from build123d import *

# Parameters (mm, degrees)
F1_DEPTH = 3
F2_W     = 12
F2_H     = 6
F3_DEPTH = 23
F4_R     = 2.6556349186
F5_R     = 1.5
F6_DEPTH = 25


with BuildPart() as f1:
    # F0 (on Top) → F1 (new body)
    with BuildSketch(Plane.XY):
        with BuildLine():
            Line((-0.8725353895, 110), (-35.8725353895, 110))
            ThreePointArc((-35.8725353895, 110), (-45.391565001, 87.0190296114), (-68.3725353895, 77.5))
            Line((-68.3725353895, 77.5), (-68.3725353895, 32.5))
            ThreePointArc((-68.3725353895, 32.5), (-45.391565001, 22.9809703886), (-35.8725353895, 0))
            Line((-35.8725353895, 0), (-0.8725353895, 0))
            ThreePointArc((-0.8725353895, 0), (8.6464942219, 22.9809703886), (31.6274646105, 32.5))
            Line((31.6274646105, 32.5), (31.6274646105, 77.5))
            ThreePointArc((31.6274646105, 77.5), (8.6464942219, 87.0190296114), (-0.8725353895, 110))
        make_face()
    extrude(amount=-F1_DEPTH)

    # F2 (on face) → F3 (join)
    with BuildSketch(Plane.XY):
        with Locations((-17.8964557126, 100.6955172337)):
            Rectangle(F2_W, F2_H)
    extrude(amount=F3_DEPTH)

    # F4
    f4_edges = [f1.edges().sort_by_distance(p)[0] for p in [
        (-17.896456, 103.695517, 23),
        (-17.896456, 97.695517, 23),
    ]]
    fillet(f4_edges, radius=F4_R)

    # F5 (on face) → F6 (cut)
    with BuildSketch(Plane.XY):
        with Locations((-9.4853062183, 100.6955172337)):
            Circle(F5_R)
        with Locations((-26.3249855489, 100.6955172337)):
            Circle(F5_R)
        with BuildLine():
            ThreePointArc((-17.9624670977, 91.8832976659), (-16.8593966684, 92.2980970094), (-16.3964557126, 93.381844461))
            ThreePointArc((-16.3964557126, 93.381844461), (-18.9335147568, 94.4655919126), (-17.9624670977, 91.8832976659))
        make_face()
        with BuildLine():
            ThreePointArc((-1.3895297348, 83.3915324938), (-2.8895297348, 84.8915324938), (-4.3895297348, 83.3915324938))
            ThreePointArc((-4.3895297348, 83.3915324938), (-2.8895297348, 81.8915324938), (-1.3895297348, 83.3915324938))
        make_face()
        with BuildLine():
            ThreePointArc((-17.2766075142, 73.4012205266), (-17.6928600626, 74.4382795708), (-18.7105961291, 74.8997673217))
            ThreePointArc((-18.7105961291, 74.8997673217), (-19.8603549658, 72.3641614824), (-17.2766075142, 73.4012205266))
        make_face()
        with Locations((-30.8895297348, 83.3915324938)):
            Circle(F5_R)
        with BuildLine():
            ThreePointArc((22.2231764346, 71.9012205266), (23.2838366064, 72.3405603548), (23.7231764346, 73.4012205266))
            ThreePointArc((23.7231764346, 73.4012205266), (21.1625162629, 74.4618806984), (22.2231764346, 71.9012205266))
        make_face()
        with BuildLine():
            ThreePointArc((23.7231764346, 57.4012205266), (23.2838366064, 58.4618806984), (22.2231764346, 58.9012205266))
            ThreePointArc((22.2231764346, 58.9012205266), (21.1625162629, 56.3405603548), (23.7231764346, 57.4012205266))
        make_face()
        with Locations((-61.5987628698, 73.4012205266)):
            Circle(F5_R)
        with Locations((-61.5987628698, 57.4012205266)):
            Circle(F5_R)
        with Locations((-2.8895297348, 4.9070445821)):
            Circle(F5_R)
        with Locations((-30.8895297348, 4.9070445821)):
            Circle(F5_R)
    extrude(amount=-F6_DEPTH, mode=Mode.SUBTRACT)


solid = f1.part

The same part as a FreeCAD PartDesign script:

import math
import FreeCAD as App
import Part
import Sketcher
Q = App.Units.Quantity


def edges_at(feature, points):
    """Names of the edges that pass closest to the given points."""
    edges = feature.Shape.Edges
    near = lambda p: min(range(len(edges)), key=lambda i: edges[i].distToShape(Part.Vertex(*p))[0])
    return sorted({f"Edge{near(p) + 1}" for p in points})


def add_polygon(sketch, points):
    """Adds a closed chain of lines whose ends are joined by coincident constraints."""
    first, n = sketch.GeometryCount, len(points)
    for a, b in zip(points, points[1:] + points[:1]):
        sketch.addGeometry(Part.LineSegment(App.Vector(*a, 0), App.Vector(*b, 0)), False)
    for i in range(n):
        sketch.addConstraint(Sketcher.Constraint("Coincident", first + i, 2, first + (i + 1) % n, 1))

doc = App.newDocument("Part")
body = doc.addObject("PartDesign::Body", "Body")

# Sketch on XY plane
sketch1 = body.newObject("Sketcher::SketchObject", "Sketch")
sketch1.AttachmentSupport = (doc.getObject("XY_Plane"), [""])
sketch1.MapMode = "FlatFace"
sketch1.addGeometry([
    Part.LineSegment(App.Vector(-1, 110, 0), App.Vector(-36, 110, 0)),  # 0
    Part.ArcOfCircle(Part.Circle(App.Vector(-68, 110, 0), App.Vector(0, 0, 1), 32), math.radians(-90), math.radians(0)),  # 1
    Part.LineSegment(App.Vector(-68, 78, 0), App.Vector(-68, 32, 0)),  # 2
    Part.ArcOfCircle(Part.Circle(App.Vector(-68, 0, 0), App.Vector(0, 0, 1), 32), math.radians(0), math.radians(90)),  # 3
    Part.LineSegment(App.Vector(-36, 0, 0), App.Vector(-1, 0, 0)),  # 4
    Part.ArcOfCircle(Part.Circle(App.Vector(32, 0, 0), App.Vector(0, 0, 1), 32), math.radians(90), math.radians(180)),  # 5
    Part.LineSegment(App.Vector(32, 32, 0), App.Vector(32, 78, 0)),  # 6
    Part.ArcOfCircle(Part.Circle(App.Vector(32, 110, 0), App.Vector(0, 0, 1), 32), math.radians(180), math.radians(270)),  # 7
], False)
sketch1.addConstraint([
    Sketcher.Constraint("Coincident", 0, 2, 1, 2),
    Sketcher.Constraint("Coincident", 1, 1, 2, 1),
    Sketcher.Constraint("Coincident", 2, 2, 3, 2),
    Sketcher.Constraint("Coincident", 3, 1, 4, 1),
    Sketcher.Constraint("Coincident", 4, 2, 5, 2),
    Sketcher.Constraint("Coincident", 5, 1, 6, 1),
    Sketcher.Constraint("Coincident", 6, 2, 7, 2),
    Sketcher.Constraint("Coincident", 7, 1, 0, 1),
    Sketcher.Constraint("Horizontal", 0),
    Sketcher.Constraint("Vertical", 2),
    Sketcher.Constraint("Horizontal", 4),
    Sketcher.Constraint("Vertical", 6),
    Sketcher.Constraint("Equal", 1, 3),
    Sketcher.Constraint("Equal", 3, 5),
    Sketcher.Constraint("Equal", 5, 7),
    Sketcher.Constraint("PointOnObject", 3, 3, -1),
    Sketcher.Constraint("PointOnObject", 5, 3, -1),
    Sketcher.Constraint("PointOnObject", 3, 1, -1),
    Sketcher.Constraint("Horizontal", 1, 3, 7, 3),
    Sketcher.Constraint("Horizontal", 7, 3, 0, 2),
    Sketcher.Constraint("Vertical", 1, 3, 3, 3),
    Sketcher.Constraint("Vertical", 5, 3, 7, 3),
    Sketcher.Constraint("Vertical", 3, 3, 1, 1),
    Sketcher.Constraint("Vertical", 7, 3, 5, 1),
    Sketcher.Constraint("Radius", 1, Q("32.5 mm")),
    Sketcher.Constraint("DistanceX", 0, 2, 0, 1, Q("35 mm")),
    Sketcher.Constraint("DistanceY", 2, 2, 2, 1, Q("45 mm")),
    Sketcher.Constraint("DistanceX", 1, 3, -1, 1, Q("68.372535 mm")),
])
pad1 = body.newObject("PartDesign::Pad", "Pad")
pad1.Profile = sketch1
pad1.Length = 3
pad1.Reversed = True

# Sketch on XY plane
sketch2 = body.newObject("Sketcher::SketchObject", "Sketch001")
sketch2.AttachmentSupport = (doc.getObject("XY_Plane"), [""])
sketch2.MapMode = "FlatFace"
add_polygon(sketch2, [(-24, 104), (-24, 98), (-12, 98), (-12, 104)])  # lines 0-3
sketch2.addConstraint([
    Sketcher.Constraint("Vertical", 0),
    Sketcher.Constraint("Horizontal", 1),
    Sketcher.Constraint("Vertical", 2),
    Sketcher.Constraint("Horizontal", 3),
    Sketcher.Constraint("DistanceX", 1, 1, 1, 2, Q("12 mm")),
    Sketcher.Constraint("DistanceY", 0, 2, 0, 1, Q("6 mm")),
    Sketcher.Constraint("DistanceX", 0, 2, -1, 1, Q("23.896456 mm")),
    Sketcher.Constraint("DistanceY", -1, 1, 0, 2, Q("97.695517 mm")),
])
pad2 = body.newObject("PartDesign::Pad", "Pad001")
pad2.Profile = sketch2
pad2.Length = 23
doc.recompute()

fillet = body.newObject("PartDesign::Fillet", "Fillet")
fillet.Base = (pad2, edges_at(pad2, [(-17.896, 103.696, 23), (-17.896, 97.696, 23)]))
fillet.Radius = 2.655635

# Sketch on XY plane
sketch3 = body.newObject("Sketcher::SketchObject", "Sketch002")
sketch3.AttachmentSupport = (doc.getObject("XY_Plane"), [""])
sketch3.MapMode = "FlatFace"
sketch3.addGeometry([
    Part.Circle(App.Vector(-9.5, 100.7, 0), App.Vector(0, 0, 1), 1.5),  # 0
    Part.Circle(App.Vector(-26.3, 100.7, 0), App.Vector(0, 0, 1), 1.5),  # 1
    Part.ArcOfCircle(Part.Circle(App.Vector(-17.9, 93.4, 0), App.Vector(0, 0, 1), 1.5), math.radians(-93), math.radians(0)),  # 2
    Part.ArcOfCircle(Part.Circle(App.Vector(-17.9, 93.4, 0), App.Vector(0, 0, 1), 1.5), math.radians(0), math.radians(267)),  # 3
    Part.Circle(App.Vector(-2.9, 83.4, 0), App.Vector(0, 0, 1), 1.5),  # 4
    Part.ArcOfCircle(Part.Circle(App.Vector(-18.8, 73.4, 0), App.Vector(0, 0, 1), 1.5), math.radians(0), math.radians(87)),  # 5
    Part.ArcOfCircle(Part.Circle(App.Vector(-18.8, 73.4, 0), App.Vector(0, 0, 1), 1.5), math.radians(87), math.radians(360)),  # 6
    Part.Circle(App.Vector(-30.9, 83.4, 0), App.Vector(0, 0, 1), 1.5),  # 7
    Part.ArcOfCircle(Part.Circle(App.Vector(22.2, 73.4, 0), App.Vector(0, 0, 1), 1.5), math.radians(-90), math.radians(0)),  # 8
    Part.ArcOfCircle(Part.Circle(App.Vector(22.2, 73.4, 0), App.Vector(0, 0, 1), 1.5), math.radians(0), math.radians(270)),  # 9
    Part.ArcOfCircle(Part.Circle(App.Vector(22.2, 57.4, 0), App.Vector(0, 0, 1), 1.5), math.radians(0), math.radians(90)),  # 10
    Part.ArcOfCircle(Part.Circle(App.Vector(22.2, 57.4, 0), App.Vector(0, 0, 1), 1.5), math.radians(90), math.radians(360)),  # 11
    Part.Circle(App.Vector(-61.6, 73.4, 0), App.Vector(0, 0, 1), 1.5),  # 12
    Part.Circle(App.Vector(-61.6, 57.4, 0), App.Vector(0, 0, 1), 1.5),  # 13
    Part.Circle(App.Vector(-2.9, 4.9, 0), App.Vector(0, 0, 1), 1.5),  # 14
    Part.Circle(App.Vector(-30.9, 4.9, 0), App.Vector(0, 0, 1), 1.5),  # 15
], False)
sketch3.addConstraint([
    Sketcher.Constraint("Tangent", 2, 1, 3, 2),
    Sketcher.Constraint("Coincident", 3, 1, 2, 2),
    Sketcher.Constraint("Tangent", 5, 1, 6, 2),
    Sketcher.Constraint("Coincident", 6, 1, 5, 2),
    Sketcher.Constraint("Tangent", 8, 1, 9, 2),
    Sketcher.Constraint("Coincident", 9, 1, 8, 2),
    Sketcher.Constraint("Tangent", 10, 1, 11, 2),
    Sketcher.Constraint("Coincident", 11, 1, 10, 2),
    Sketcher.Constraint("Equal", 0, 1),
    Sketcher.Constraint("Equal", 1, 2),
    Sketcher.Constraint("Equal", 3, 4),
    Sketcher.Constraint("Equal", 4, 5),
    Sketcher.Constraint("Equal", 6, 7),
    Sketcher.Constraint("Equal", 7, 8),
    Sketcher.Constraint("Equal", 9, 10),
    Sketcher.Constraint("Equal", 11, 12),
    Sketcher.Constraint("Equal", 12, 13),
    Sketcher.Constraint("Equal", 13, 14),
    Sketcher.Constraint("Equal", 14, 15),
    Sketcher.Constraint("Horizontal", 0, 3, 1, 3),
    Sketcher.Constraint("Horizontal", 4, 3, 7, 3),
    Sketcher.Constraint("Horizontal", 6, 3, 8, 3),
    Sketcher.Constraint("Horizontal", 9, 3, 12, 3),
    Sketcher.Constraint("Horizontal", 11, 3, 13, 3),
    Sketcher.Constraint("Horizontal", 14, 3, 15, 3),
    Sketcher.Constraint("Horizontal", 2, 3, 3, 1),
    Sketcher.Constraint("Horizontal", 12, 3, 5, 1),
    Sketcher.Constraint("Horizontal", 5, 1, 9, 1),
    Sketcher.Constraint("Horizontal", 13, 3, 10, 1),
    Sketcher.Constraint("Vertical", 9, 3, 10, 3),
    Sketcher.Constraint("Vertical", 12, 3, 13, 3),
    Sketcher.Constraint("Vertical", 4, 3, 14, 3),
    Sketcher.Constraint("Vertical", 7, 3, 15, 3),
    Sketcher.Constraint("Vertical", 11, 3, 8, 1),
    Sketcher.Constraint("Vertical", 8, 1, 11, 1),
    Sketcher.Constraint("Diameter", 0, Q("3 mm")),
    Sketcher.Constraint("DistanceY", 10, 3, 8, 3, Q("16 mm")),
    Sketcher.Constraint("DistanceX", 15, 3, 14, 3, Q("28 mm")),
    Sketcher.Constraint("DistanceX", 5, 3, 0, 3, Q("9.291301 mm")),
    Sketcher.Constraint("DistanceX", 4, 3, -1, 1, Q("2.88953 mm")),
    Sketcher.Constraint("DistanceY", -1, 1, 5, 3, Q("73.401221 mm")),
    Sketcher.Constraint("DistanceX", 1, 3, 0, 3, Q("16.839679 mm")),
    Sketcher.Constraint("DistanceX", 2, 3, 0, 3, Q("8.411149 mm")),
    Sketcher.Constraint("DistanceY", 4, 3, 2, 3, Q("9.990312 mm")),
    Sketcher.Constraint("DistanceY", 5, 3, 4, 3, Q("9.990312 mm")),
    Sketcher.Constraint("DistanceX", 2, 1, 2, 3, Q("0.066011 mm")),
    Sketcher.Constraint("DistanceY", 2, 1, 1, 3, Q("8.81222 mm")),
    Sketcher.Constraint("DistanceX", 5, 3, 6, 1, Q("0.066011 mm")),
    Sketcher.Constraint("DistanceX", 0, 3, -1, 1, Q("9.485306 mm")),
    Sketcher.Constraint("DistanceX", -1, 1, 8, 3, Q("22.223176 mm")),
    Sketcher.Constraint("DistanceX", 12, 3, -1, 1, Q("61.598763 mm")),
    Sketcher.Constraint("DistanceY", -1, 1, 14, 3, Q("4.907045 mm")),
])
pocket1 = body.newObject("PartDesign::Pocket", "Pocket")
pocket1.Profile = sketch3
pocket1.Length = 25

doc.recompute()
